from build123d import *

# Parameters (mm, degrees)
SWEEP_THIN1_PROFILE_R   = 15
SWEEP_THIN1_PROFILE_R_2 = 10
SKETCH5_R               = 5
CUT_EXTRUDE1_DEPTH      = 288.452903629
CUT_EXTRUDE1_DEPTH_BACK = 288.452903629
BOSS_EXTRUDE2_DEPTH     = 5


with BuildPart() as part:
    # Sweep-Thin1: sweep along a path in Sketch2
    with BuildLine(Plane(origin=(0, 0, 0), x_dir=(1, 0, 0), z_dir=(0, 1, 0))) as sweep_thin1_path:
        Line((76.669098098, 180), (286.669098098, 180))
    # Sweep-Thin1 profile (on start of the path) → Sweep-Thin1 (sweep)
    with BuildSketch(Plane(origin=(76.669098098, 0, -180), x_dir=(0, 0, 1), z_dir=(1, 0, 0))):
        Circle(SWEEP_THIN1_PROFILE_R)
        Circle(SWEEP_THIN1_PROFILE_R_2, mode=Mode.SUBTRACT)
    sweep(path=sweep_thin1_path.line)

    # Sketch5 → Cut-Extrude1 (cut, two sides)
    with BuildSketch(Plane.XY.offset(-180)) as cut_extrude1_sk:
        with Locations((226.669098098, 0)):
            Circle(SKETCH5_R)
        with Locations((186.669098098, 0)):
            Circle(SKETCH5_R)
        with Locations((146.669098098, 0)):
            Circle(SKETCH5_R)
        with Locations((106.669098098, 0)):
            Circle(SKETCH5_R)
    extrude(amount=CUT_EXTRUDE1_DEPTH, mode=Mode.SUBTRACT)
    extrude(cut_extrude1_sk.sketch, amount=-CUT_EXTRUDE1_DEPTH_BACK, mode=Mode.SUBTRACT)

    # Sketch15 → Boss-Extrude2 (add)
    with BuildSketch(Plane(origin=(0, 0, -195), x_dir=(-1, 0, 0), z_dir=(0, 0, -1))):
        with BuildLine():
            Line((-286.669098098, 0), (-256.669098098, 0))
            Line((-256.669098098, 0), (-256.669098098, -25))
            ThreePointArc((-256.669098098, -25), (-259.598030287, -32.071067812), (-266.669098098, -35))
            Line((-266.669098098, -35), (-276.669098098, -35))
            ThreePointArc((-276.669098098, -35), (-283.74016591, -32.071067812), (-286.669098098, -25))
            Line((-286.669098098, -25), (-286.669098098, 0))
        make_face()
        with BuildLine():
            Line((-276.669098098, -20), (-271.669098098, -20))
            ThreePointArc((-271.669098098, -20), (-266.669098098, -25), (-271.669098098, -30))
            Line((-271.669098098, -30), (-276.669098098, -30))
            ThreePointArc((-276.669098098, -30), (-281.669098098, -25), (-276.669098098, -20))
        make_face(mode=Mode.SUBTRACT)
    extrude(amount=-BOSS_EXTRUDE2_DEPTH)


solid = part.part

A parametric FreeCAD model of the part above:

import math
import FreeCAD as App
import Part
import Sketcher
Q = App.Units.Quantity

doc = App.newDocument("Part")
body = doc.addObject("PartDesign::Body", "Body")

# Sketch on YZ plane
sketch1 = body.newObject("Sketcher::SketchObject", "Sketch")
sketch1.AttachmentSupport = (doc.getObject("YZ_Plane"), [""])
sketch1.MapMode = "FlatFace"
sketch1.AttachmentOffset = App.Placement(App.Vector(0, 0, 76.669098), App.Rotation())
sketch1.addGeometry(Part.Circle(App.Vector(0, -180, 0), App.Vector(0, 0, 1), 15), False)
sketch1.addGeometry(Part.Circle(App.Vector(0, -180, 0), App.Vector(0, 0, 1), 10), False)
sketch1.addConstraint(Sketcher.Constraint("Coincident", 1, 3, 0, 3))
sketch1.addConstraint(Sketcher.Constraint("PointOnObject", 0, 3, -2))
sketch1.addConstraint(Sketcher.Constraint("Diameter", 0, Q("30 mm")))
sketch1.addConstraint(Sketcher.Constraint("Diameter", 1, Q("20 mm")))
sketch1.addConstraint(Sketcher.Constraint("DistanceY", 0, 3, -1, 1, Q("180 mm")))

# Sketch on XY plane
sketch2 = body.newObject("Sketcher::SketchObject", "Sketch001")
sketch2.AttachmentSupport = (doc.getObject("XY_Plane"), [""])
sketch2.MapMode = "FlatFace"
sketch2.AttachmentOffset = App.Placement(App.Vector(0, 0, -180), App.Rotation())
sketch2.addGeometry(Part.LineSegment(App.Vector(76.669098, 0, 0), App.Vector(286.669098, 0, 0)), False)
sketch2.addConstraint(Sketcher.Constraint("Horizontal", 0))
sketch2.addConstraint(Sketcher.Constraint("PointOnObject", 0, 1, -1))
sketch2.addConstraint(Sketcher.Constraint("DistanceX", 0, 1, 0, 2, Q("210 mm")))
sketch2.addConstraint(Sketcher.Constraint("DistanceX", -1, 1, 0, 1, Q("76.669098 mm")))
doc.recompute()

additivepipe = body.newObject("PartDesign::AdditivePipe", "AdditivePipe")
additivepipe.Profile = sketch1
additivepipe.Spine = (sketch2, ["Edge1"])

# Sketch on XY plane
sketch3 = body.newObject("Sketcher::SketchObject", "Sketch002")
sketch3.AttachmentSupport = (doc.getObject("XY_Plane"), [""])
sketch3.MapMode = "FlatFace"
sketch3.AttachmentOffset = App.Placement(App.Vector(0, 0, -180), App.Rotation())
sketch3.addGeometry(Part.Circle(App.Vector(226.669098, 0, 0), App.Vector(0, 0, 1), 5), False)
sketch3.addGeometry(Part.Circle(App.Vector(186.669098, 0, 0), App.Vector(0, 0, 1), 5), False)
sketch3.addGeometry(Part.Circle(App.Vector(146.669098, 0, 0), App.Vector(0, 0, 1), 5), False)
sketch3.addGeometry(Part.Circle(App.Vector(106.669098, 0, 0), App.Vector(0, 0, 1), 5), False)
sketch3.addConstraint(Sketcher.Constraint("Equal", 0, 1))
sketch3.addConstraint(Sketcher.Constraint("Equal", 1, 2))
sketch3.addConstraint(Sketcher.Constraint("Equal", 2, 3))
sketch3.addConstraint(Sketcher.Constraint("PointOnObject", 0, 3, -1))
sketch3.addConstraint(Sketcher.Constraint("PointOnObject", 1, 3, -1))
sketch3.addConstraint(Sketcher.Constraint("PointOnObject", 2, 3, -1))
sketch3.addConstraint(Sketcher.Constraint("PointOnObject", 3, 3, -1))
sketch3.addConstraint(Sketcher.Constraint("Diameter", 0, Q("10 mm")))
sketch3.addConstraint(Sketcher.Constraint("DistanceX", 1, 3, 0, 3, Q("40 mm")))
sketch3.addConstraint(Sketcher.Constraint("DistanceX", 2, 3, 1, 3, Q("40 mm")))
sketch3.addConstraint(Sketcher.Constraint("DistanceX", 3, 3, 2, 3, Q("40 mm")))
sketch3.addConstraint(Sketcher.Constraint("DistanceX", -1, 1, 0, 3, Q("226.669098 mm")))
pocket1 = body.newObject("PartDesign::Pocket", "Pocket")
pocket1.Profile = sketch3
pocket1.Type = "ThroughAll"
pocket1.Midplane = True

# Sketch on XY plane
sketch4 = body.newObject("Sketcher::SketchObject", "Sketch003")
sketch4.AttachmentSupport = (doc.getObject("XY_Plane"), [""])
sketch4.MapMode = "FlatFace"
sketch4.AttachmentOffset = App.Placement(App.Vector(0, 0, -195), App.Rotation())
sketch4.addGeometry(Part.LineSegment(App.Vector(256.669098, 0, 0), App.Vector(286.669098, 0, 0)), False)
sketch4.addGeometry(Part.LineSegment(App.Vector(286.669098, 0, 0), App.Vector(286.669098, -25, 0)), False)
sketch4.addGeometry(Part.ArcOfCircle(Part.Circle(App.Vector(276.669098, -25, 0), App.Vector(0, 0, 1), 10), math.radians(-90), math.radians(0)), False)
sketch4.addGeometry(Part.LineSegment(App.Vector(276.669098, -35, 0), App.Vector(266.669098, -35, 0)), False)
sketch4.addGeometry(Part.ArcOfCircle(Part.Circle(App.Vector(266.669098, -25, 0), App.Vector(0, 0, 1), 10), math.radians(-180), math.radians(-90)), False)
sketch4.addGeometry(Part.LineSegment(App.Vector(256.669098, -25, 0), App.Vector(256.669098, 0, 0)), False)
sketch4.addGeometry(Part.LineSegment(App.Vector(276.669098, -20, 0), App.Vector(271.669098, -20, 0)), False)
sketch4.addGeometry(Part.ArcOfCircle(Part.Circle(App.Vector(271.669098, -25, 0), App.Vector(0, 0, 1), 5), math.radians(90), math.radians(270)), False)
sketch4.addGeometry(Part.LineSegment(App.Vector(271.669098, -30, 0), App.Vector(276.669098, -30, 0)), False)
sketch4.addGeometry(Part.ArcOfCircle(Part.Circle(App.Vector(276.669098, -25, 0), App.Vector(0, 0, 1), 5), math.radians(-90), math.radians(90)), False)
sketch4.addConstraint(Sketcher.Constraint("Coincident", 0, 2, 1, 1))
sketch4.addConstraint(Sketcher.Constraint("Tangent", 1, 2, 2, 2))
sketch4.addConstraint(Sketcher.Constraint("Tangent", 2, 1, 3, 1))
sketch4.addConstraint(Sketcher.Constraint("Tangent", 3, 2, 4, 2))
sketch4.addConstraint(Sketcher.Constraint("Tangent", 4, 1, 5, 1))
sketch4.addConstraint(Sketcher.Constraint("Coincident", 5, 2, 0, 1))
sketch4.addConstraint(Sketcher.Constraint("Tangent", 6, 2, 7, 1))
sketch4.addConstraint(Sketcher.Constraint("Tangent", 7, 2, 8, 1))
sketch4.addConstraint(Sketcher.Constraint("Tangent", 8, 2, 9, 1))
sketch4.addConstraint(Sketcher.Constraint("Tangent", 9, 2, 6, 1))
sketch4.addConstraint(Sketcher.Constraint("Horizontal", 0))
sketch4.addConstraint(Sketcher.Constraint("Vertical", 1))
sketch4.addConstraint(Sketcher.Constraint("Horizontal", 3))
sketch4.addConstraint(Sketcher.Constraint("Vertical", 5))
sketch4.addConstraint(Sketcher.Constraint("Horizontal", 6))
sketch4.addConstraint(Sketcher.Constraint("Horizontal", 8))
sketch4.addConstraint(Sketcher.Constraint("Coincident", 9, 3, 2, 3))
sketch4.addConstraint(Sketcher.Constraint("Equal", 2, 4))
sketch4.addConstraint(Sketcher.Constraint("PointOnObject", 0, 2, -1))
sketch4.addConstraint(Sketcher.Constraint("Radius", 2, Q("10 mm")))
sketch4.addConstraint(Sketcher.Constraint("Radius", 7, Q("5 mm")))
sketch4.addConstraint(Sketcher.Constraint("DistanceX", 0, 1, 0, 2, Q("30 mm")))
sketch4.addConstraint(Sketcher.Constraint("DistanceX", 6, 2, 6, 1, Q("5 mm")))
sketch4.addConstraint(Sketcher.Constraint("DistanceY", 1, 2, 1, 1, Q("25 mm")))
sketch4.addConstraint(Sketcher.Constraint("DistanceX", -1, 1, 2, 3, Q("276.669098 mm")))
pad1 = body.newObject("PartDesign::Pad", "Pad")
pad1.Profile = sketch4
pad1.Length = 5

doc.recompute()
